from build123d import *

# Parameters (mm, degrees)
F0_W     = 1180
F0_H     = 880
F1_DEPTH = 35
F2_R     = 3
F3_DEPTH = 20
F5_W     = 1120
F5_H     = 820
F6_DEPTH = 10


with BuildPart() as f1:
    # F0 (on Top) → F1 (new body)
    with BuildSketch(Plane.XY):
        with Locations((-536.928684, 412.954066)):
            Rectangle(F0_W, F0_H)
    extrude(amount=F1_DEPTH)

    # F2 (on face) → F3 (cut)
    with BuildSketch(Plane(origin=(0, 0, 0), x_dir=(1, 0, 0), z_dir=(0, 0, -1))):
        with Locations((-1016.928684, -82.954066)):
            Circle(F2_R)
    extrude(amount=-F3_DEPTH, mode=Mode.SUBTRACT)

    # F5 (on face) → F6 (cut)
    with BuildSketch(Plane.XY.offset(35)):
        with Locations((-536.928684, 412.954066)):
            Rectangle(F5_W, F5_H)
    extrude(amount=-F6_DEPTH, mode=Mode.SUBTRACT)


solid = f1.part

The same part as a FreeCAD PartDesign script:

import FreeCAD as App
import Part
import Sketcher
from FreeCAD import Vector


def add_polygon(sketch, points):
    """Adds a closed chain of lines whose ends are joined by coincident constraints."""
    first, n = sketch.GeometryCount, len(points)
    for a, b in zip(points, points[1:] + points[:1]):
        sketch.addGeometry(Part.LineSegment(App.Vector(*a, 0), App.Vector(*b, 0)), False)
    for i in range(n):
        sketch.addConstraint(Sketcher.Constraint("Coincident", first + i, 2, first + (i + 1) % n, 1))

doc = App.newDocument("Part")
body = doc.addObject("PartDesign::Body", "Body")

# Sketch on XY plane
sketch1 = body.newObject("Sketcher::SketchObject", "Sketch")
sketch1.AttachmentSupport = (doc.getObject("XY_Plane"), [""])
sketch1.MapMode = "FlatFace"
add_polygon(sketch1, [(-1127, 853), (-1127, -27), (53, -27), (53, 853)])  # lines 0-3
sketch1.addConstraint(Sketcher.Constraint("Vertical", 0))
sketch1.addConstraint(Sketcher.Constraint("Horizontal", 1))
sketch1.addConstraint(Sketcher.Constraint("Vertical", 2))
sketch1.addConstraint(Sketcher.Constraint("Horizontal", 3))
sketch1.addConstraint(Sketcher.Constraint("DistanceX", 1, 1, 1, 2, 1180.0))
sketch1.addConstraint(Sketcher.Constraint("DistanceY", 0, 2, 0, 1, 880.0))
sketch1.addConstraint(Sketcher.Constraint("DistanceX", 0, 2, -1, 1, 1126.928684))
sketch1.addConstraint(Sketcher.Constraint("DistanceY", 0, 2, -1, 1, 27.045934))
pad1 = body.newObject("PartDesign::Pad", "Pad")
pad1.Profile = sketch1
pad1.Length = 35

# Sketch on XY plane
sketch2 = body.newObject("Sketcher::SketchObject", "Sketch001")
sketch2.AttachmentSupport = (doc.getObject("XY_Plane"), [""])
sketch2.MapMode = "FlatFace"
sketch2.addGeometry(Part.Circle(Vector(-1016.9, 83, 0), Vector(0, 0, 1), 3), False)
sketch2.addConstraint(Sketcher.Constraint("Diameter", 0, 6.0))
sketch2.addConstraint(Sketcher.Constraint("DistanceX", 0, 3, -1, 1, 1016.928684))
sketch2.addConstraint(Sketcher.Constraint("DistanceY", -1, 1, 0, 3, 82.954066))
pocket1 = body.newObject("PartDesign::Pocket", "Pocket")
pocket1.Profile = sketch2
pocket1.Length = 20
pocket1.Reversed = True

# Sketch on XY plane
sketch3 = body.newObject("Sketcher::SketchObject", "Sketch002")
sketch3.AttachmentSupport = (doc.getObject("XY_Plane"), [""])
sketch3.MapMode = "FlatFace"
sketch3.AttachmentOffset = App.Placement(Vector(0, 0, 35), App.Rotation())
add_polygon(sketch3, [(-1097, 823), (-1097, 3), (23, 3), (23, 823)])  # lines 0-3
sketch3.addConstraint(Sketcher.Constraint("Vertical", 0))
sketch3.addConstraint(Sketcher.Constraint("Horizontal", 1))
sketch3.addConstraint(Sketcher.Constraint("Vertical", 2))
sketch3.addConstraint(Sketcher.Constraint("Horizontal", 3))
sketch3.addConstraint(Sketcher.Constraint("DistanceX", 1, 1, 1, 2, 1120.0))
sketch3.addConstraint(Sketcher.Constraint("DistanceY", 0, 2, 0, 1, 820.0))
sketch3.addConstraint(Sketcher.Constraint("DistanceX", 0, 2, -1, 1, 1096.928684))
sketch3.addConstraint(Sketcher.Constraint("DistanceY", -1, 1, 0, 2, 2.954066))
pocket2 = body.newObject("PartDesign::Pocket", "Pocket001")
pocket2.Profile = sketch3
pocket2.Length = 10

doc.recompute()
